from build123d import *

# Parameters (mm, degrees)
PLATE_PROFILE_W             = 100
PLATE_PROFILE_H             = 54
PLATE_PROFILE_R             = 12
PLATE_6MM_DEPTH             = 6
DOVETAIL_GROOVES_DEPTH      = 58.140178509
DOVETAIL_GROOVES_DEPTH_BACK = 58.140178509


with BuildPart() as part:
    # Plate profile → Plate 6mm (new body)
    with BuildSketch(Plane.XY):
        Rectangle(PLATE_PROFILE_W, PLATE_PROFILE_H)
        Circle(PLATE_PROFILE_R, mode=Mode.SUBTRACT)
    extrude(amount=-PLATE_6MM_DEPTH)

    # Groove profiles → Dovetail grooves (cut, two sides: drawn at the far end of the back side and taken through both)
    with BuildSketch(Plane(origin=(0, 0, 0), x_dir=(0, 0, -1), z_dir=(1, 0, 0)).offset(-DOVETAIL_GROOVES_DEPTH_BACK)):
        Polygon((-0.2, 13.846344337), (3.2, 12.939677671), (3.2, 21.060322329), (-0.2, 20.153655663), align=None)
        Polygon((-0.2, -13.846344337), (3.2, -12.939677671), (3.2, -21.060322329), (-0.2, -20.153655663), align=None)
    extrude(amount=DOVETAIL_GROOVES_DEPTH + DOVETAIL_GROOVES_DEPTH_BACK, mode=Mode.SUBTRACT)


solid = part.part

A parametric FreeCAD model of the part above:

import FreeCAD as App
import Part
import Sketcher
from FreeCAD import Vector


def add_polygon(sketch, points):
    """Adds a closed chain of lines whose ends are joined by coincident constraints."""
    first, n = sketch.GeometryCount, len(points)
    for a, b in zip(points, points[1:] + points[:1]):
        sketch.addGeometry(Part.LineSegment(App.Vector(*a, 0), App.Vector(*b, 0)), False)
    for i in range(n):
        sketch.addConstraint(Sketcher.Constraint("Coincident", first + i, 2, first + (i + 1) % n, 1))

doc = App.newDocument("Part")
body = doc.addObject("PartDesign::Body", "Body")

sketch1 = doc.addObject("Sketcher::SketchObject", "Sketch")
body.addObject(sketch1)
sketch1.AttachmentSupport = (doc.XY_Plane, [""])
sketch1.MapMode = "FlatFace"
add_polygon(sketch1, [(-50, 27), (-50, -27), (50, -27), (50, 27)])
sketch1.addGeometry(Part.Circle(Vector(0, 0, 0), Vector(0, 0, 1), 12), False)
sketch1.addConstraint([
    Sketcher.Constraint("Vertical", 0),
    Sketcher.Constraint("Horizontal", 1),
    Sketcher.Constraint("Vertical", 2),
    Sketcher.Constraint("Horizontal", 3),
    Sketcher.Constraint("Coincident", 4, 3, -1, 1),
    Sketcher.Constraint("Symmetric", 0, 2, 2, 2, -1, 1),
    Sketcher.Constraint("Diameter", 4, 24.0),
    Sketcher.Constraint("DistanceX", 1, 1, 1, 2, 100.0),
    Sketcher.Constraint("DistanceY", 0, 2, 0, 1, 54.0),
])
pad1 = doc.addObject("PartDesign::Pad", "Pad")
body.addObject(pad1)
pad1.Profile = sketch1
pad1.Length = 6
pad1.Reversed = True

sketch2 = doc.addObject("Sketcher::SketchObject", "Sketch001")
body.addObject(sketch2)
sketch2.AttachmentSupport = (doc.YZ_Plane, [""])
sketch2.MapMode = "FlatFace"
add_polygon(sketch2, [(13.8, 0.2), (12.9, -3.2), (21.1, -3.2), (20.2, 0.2)])
add_polygon(sketch2, [(-12.9, -3.2), (-13.8, 0.2), (-20.2, 0.2), (-21.1, -3.2)])
sketch2.addConstraint([
    Sketcher.Constraint("Horizontal", 1),
    Sketcher.Constraint("Horizontal", 3),
    Sketcher.Constraint("Horizontal", 5),
    Sketcher.Constraint("Horizontal", 7),
    Sketcher.Constraint("Symmetric", 3, 2, 4, 2, -2),
    Sketcher.Constraint("Symmetric", 1, 2, 6, 2, -2),
    Sketcher.Constraint("Parallel", 2, 4),
    Sketcher.Constraint("Parallel", 0, 6),
    Sketcher.Constraint("Equal", 3, 5),
    Sketcher.Constraint("DistanceX", 4, 2, 2, 2, 34.0),
    Sketcher.Constraint("DistanceY", 0, 2, -1, 1, 3.2),
    Sketcher.Constraint("DistanceY", -1, 1, 2, 2, 0.2),
    Sketcher.Constraint("DistanceX", 3, 2, 3, 1, 6.307311),
    Sketcher.Constraint("DistanceX", 1, 1, 1, 2, 8.120645),
])
pocket1 = doc.addObject("PartDesign::Pocket", "Pocket")
body.addObject(pocket1)
pocket1.Profile = sketch2
pocket1.Type = "ThroughAll"
pocket1.Midplane = True

doc.recompute()
